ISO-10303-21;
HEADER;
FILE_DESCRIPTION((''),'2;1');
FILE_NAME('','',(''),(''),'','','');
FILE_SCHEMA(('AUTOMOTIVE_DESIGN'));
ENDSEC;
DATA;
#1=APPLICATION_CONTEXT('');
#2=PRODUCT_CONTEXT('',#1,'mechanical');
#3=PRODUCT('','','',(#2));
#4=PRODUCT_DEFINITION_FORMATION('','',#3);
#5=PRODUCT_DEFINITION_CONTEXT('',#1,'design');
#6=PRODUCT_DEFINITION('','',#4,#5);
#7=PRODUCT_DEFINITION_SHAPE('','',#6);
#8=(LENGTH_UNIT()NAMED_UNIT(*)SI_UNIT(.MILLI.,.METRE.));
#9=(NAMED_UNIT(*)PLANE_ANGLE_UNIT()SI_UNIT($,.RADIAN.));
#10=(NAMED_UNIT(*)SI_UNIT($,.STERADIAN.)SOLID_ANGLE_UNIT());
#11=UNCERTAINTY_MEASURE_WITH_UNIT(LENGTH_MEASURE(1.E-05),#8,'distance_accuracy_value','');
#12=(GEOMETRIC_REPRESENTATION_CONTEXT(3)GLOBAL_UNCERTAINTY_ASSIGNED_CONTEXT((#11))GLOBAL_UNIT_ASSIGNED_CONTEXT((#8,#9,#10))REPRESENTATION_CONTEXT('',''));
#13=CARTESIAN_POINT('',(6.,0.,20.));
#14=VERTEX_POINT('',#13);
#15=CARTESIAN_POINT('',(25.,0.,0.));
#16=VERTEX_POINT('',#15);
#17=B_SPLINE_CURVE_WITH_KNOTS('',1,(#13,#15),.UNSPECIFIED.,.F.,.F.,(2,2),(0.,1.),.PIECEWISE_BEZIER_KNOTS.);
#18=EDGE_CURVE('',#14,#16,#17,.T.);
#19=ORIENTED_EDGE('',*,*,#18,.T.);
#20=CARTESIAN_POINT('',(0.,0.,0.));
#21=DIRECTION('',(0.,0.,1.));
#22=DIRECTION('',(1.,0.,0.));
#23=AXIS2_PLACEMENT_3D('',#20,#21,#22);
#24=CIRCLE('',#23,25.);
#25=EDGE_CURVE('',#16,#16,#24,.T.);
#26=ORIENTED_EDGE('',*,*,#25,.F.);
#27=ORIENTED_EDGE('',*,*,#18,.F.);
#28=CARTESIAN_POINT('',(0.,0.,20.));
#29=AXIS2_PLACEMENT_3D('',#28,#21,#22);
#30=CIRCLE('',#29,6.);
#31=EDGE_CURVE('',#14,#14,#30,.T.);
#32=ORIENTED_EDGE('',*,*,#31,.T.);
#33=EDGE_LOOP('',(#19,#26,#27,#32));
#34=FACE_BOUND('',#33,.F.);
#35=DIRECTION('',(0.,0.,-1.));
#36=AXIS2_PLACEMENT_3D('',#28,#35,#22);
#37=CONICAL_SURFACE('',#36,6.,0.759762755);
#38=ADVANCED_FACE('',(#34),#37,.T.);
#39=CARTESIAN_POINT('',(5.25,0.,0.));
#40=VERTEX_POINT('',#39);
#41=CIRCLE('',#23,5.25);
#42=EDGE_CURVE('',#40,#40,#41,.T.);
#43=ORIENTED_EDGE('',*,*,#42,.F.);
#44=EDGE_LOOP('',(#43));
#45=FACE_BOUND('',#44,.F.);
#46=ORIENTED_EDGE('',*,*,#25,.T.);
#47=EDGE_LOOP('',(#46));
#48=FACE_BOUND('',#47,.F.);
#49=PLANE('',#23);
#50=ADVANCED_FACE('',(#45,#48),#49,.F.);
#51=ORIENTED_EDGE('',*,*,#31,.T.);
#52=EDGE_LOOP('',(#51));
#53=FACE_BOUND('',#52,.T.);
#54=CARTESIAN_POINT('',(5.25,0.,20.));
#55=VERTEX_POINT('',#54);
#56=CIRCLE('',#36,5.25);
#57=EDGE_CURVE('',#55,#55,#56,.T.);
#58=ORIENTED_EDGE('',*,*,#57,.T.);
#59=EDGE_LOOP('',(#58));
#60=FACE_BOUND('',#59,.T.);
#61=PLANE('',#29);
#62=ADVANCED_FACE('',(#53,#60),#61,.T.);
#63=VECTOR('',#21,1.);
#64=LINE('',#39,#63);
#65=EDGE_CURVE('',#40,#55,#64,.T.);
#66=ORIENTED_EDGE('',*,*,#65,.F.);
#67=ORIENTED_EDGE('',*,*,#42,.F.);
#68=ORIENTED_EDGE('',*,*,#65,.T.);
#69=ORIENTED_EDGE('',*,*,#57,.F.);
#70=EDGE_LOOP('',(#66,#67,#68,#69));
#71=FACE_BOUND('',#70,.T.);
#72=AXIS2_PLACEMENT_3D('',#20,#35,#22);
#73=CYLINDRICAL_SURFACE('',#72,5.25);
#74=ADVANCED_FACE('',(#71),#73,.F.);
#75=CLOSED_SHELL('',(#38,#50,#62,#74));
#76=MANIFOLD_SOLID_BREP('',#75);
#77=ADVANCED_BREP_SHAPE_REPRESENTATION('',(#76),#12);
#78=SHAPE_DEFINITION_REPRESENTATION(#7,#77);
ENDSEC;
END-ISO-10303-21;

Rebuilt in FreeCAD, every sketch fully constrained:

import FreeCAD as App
import Part
import Sketcher

V = App.Vector

doc = App.newDocument("Part")
params = doc.addObject("Spreadsheet::Sheet", "Params")
for row, (alias, value) in enumerate([
    ("sketch1_diameter", "12 mm"),
    ("sketch2_diameter", "50 mm"),
    ("sketch3_diameter", "10.5 mm"),
], start=1):
    params.set(f"A{row}", alias)
    params.set(f"B{row}", "=" + value)
    params.setAlias(f"B{row}", alias)

body = doc.addObject("PartDesign::Body", "Body")

# Sketch on XY plane
sketch1 = body.newObject("Sketcher::SketchObject", "Sketch")
sketch1.AttachmentSupport = (doc.getObject("XY_Plane"), [""])
sketch1.MapMode = "FlatFace"
sketch1.AttachmentOffset = App.Placement(V(0, 0, 20), App.Rotation())
sketch1.addGeometry(Part.Circle(V(0, 0, 0), V(0, 0, 1), 6), False)
sketch1.addConstraint([
    Sketcher.Constraint("Coincident", 0, 3, -1, 1),
    Sketcher.Constraint("Diameter", 0, 12.0),
])
sketch1.setExpression("Constraints[1]", "Params.sketch1_diameter")

# Sketch on XY plane
sketch2 = body.newObject("Sketcher::SketchObject", "Sketch001")
sketch2.AttachmentSupport = (doc.getObject("XY_Plane"), [""])
sketch2.MapMode = "FlatFace"
sketch2.addGeometry(Part.Circle(V(0, 0, 0), V(0, 0, 1), 25), False)
sketch2.addConstraint([
    Sketcher.Constraint("Coincident", 0, 3, -1, 1),
    Sketcher.Constraint("Diameter", 0, 50.0),
])
sketch2.setExpression("Constraints[1]", "Params.sketch2_diameter")

additiveloft = body.newObject("PartDesign::AdditiveLoft", "AdditiveLoft")
additiveloft.Profile = sketch1
additiveloft.Sections = [sketch2]

# Sketch on XY plane
sketch3 = body.newObject("Sketcher::SketchObject", "Sketch002")
sketch3.AttachmentSupport = (doc.getObject("XY_Plane"), [""])
sketch3.MapMode = "FlatFace"
sketch3.addGeometry(Part.Circle(V(0, 0, 0), V(0, 0, 1), 5), False)
sketch3.addConstraint([
    Sketcher.Constraint("Coincident", 0, 3, -1, 1),
    Sketcher.Constraint("Diameter", 0, 10.5),
])
sketch3.setExpression("Constraints[1]", "Params.sketch3_diameter")
pocket1 = body.newObject("PartDesign::Pocket", "Pocket")
pocket1.Profile = sketch3
pocket1.Type = "ThroughAll"
pocket1.Midplane = True

doc.recompute()
